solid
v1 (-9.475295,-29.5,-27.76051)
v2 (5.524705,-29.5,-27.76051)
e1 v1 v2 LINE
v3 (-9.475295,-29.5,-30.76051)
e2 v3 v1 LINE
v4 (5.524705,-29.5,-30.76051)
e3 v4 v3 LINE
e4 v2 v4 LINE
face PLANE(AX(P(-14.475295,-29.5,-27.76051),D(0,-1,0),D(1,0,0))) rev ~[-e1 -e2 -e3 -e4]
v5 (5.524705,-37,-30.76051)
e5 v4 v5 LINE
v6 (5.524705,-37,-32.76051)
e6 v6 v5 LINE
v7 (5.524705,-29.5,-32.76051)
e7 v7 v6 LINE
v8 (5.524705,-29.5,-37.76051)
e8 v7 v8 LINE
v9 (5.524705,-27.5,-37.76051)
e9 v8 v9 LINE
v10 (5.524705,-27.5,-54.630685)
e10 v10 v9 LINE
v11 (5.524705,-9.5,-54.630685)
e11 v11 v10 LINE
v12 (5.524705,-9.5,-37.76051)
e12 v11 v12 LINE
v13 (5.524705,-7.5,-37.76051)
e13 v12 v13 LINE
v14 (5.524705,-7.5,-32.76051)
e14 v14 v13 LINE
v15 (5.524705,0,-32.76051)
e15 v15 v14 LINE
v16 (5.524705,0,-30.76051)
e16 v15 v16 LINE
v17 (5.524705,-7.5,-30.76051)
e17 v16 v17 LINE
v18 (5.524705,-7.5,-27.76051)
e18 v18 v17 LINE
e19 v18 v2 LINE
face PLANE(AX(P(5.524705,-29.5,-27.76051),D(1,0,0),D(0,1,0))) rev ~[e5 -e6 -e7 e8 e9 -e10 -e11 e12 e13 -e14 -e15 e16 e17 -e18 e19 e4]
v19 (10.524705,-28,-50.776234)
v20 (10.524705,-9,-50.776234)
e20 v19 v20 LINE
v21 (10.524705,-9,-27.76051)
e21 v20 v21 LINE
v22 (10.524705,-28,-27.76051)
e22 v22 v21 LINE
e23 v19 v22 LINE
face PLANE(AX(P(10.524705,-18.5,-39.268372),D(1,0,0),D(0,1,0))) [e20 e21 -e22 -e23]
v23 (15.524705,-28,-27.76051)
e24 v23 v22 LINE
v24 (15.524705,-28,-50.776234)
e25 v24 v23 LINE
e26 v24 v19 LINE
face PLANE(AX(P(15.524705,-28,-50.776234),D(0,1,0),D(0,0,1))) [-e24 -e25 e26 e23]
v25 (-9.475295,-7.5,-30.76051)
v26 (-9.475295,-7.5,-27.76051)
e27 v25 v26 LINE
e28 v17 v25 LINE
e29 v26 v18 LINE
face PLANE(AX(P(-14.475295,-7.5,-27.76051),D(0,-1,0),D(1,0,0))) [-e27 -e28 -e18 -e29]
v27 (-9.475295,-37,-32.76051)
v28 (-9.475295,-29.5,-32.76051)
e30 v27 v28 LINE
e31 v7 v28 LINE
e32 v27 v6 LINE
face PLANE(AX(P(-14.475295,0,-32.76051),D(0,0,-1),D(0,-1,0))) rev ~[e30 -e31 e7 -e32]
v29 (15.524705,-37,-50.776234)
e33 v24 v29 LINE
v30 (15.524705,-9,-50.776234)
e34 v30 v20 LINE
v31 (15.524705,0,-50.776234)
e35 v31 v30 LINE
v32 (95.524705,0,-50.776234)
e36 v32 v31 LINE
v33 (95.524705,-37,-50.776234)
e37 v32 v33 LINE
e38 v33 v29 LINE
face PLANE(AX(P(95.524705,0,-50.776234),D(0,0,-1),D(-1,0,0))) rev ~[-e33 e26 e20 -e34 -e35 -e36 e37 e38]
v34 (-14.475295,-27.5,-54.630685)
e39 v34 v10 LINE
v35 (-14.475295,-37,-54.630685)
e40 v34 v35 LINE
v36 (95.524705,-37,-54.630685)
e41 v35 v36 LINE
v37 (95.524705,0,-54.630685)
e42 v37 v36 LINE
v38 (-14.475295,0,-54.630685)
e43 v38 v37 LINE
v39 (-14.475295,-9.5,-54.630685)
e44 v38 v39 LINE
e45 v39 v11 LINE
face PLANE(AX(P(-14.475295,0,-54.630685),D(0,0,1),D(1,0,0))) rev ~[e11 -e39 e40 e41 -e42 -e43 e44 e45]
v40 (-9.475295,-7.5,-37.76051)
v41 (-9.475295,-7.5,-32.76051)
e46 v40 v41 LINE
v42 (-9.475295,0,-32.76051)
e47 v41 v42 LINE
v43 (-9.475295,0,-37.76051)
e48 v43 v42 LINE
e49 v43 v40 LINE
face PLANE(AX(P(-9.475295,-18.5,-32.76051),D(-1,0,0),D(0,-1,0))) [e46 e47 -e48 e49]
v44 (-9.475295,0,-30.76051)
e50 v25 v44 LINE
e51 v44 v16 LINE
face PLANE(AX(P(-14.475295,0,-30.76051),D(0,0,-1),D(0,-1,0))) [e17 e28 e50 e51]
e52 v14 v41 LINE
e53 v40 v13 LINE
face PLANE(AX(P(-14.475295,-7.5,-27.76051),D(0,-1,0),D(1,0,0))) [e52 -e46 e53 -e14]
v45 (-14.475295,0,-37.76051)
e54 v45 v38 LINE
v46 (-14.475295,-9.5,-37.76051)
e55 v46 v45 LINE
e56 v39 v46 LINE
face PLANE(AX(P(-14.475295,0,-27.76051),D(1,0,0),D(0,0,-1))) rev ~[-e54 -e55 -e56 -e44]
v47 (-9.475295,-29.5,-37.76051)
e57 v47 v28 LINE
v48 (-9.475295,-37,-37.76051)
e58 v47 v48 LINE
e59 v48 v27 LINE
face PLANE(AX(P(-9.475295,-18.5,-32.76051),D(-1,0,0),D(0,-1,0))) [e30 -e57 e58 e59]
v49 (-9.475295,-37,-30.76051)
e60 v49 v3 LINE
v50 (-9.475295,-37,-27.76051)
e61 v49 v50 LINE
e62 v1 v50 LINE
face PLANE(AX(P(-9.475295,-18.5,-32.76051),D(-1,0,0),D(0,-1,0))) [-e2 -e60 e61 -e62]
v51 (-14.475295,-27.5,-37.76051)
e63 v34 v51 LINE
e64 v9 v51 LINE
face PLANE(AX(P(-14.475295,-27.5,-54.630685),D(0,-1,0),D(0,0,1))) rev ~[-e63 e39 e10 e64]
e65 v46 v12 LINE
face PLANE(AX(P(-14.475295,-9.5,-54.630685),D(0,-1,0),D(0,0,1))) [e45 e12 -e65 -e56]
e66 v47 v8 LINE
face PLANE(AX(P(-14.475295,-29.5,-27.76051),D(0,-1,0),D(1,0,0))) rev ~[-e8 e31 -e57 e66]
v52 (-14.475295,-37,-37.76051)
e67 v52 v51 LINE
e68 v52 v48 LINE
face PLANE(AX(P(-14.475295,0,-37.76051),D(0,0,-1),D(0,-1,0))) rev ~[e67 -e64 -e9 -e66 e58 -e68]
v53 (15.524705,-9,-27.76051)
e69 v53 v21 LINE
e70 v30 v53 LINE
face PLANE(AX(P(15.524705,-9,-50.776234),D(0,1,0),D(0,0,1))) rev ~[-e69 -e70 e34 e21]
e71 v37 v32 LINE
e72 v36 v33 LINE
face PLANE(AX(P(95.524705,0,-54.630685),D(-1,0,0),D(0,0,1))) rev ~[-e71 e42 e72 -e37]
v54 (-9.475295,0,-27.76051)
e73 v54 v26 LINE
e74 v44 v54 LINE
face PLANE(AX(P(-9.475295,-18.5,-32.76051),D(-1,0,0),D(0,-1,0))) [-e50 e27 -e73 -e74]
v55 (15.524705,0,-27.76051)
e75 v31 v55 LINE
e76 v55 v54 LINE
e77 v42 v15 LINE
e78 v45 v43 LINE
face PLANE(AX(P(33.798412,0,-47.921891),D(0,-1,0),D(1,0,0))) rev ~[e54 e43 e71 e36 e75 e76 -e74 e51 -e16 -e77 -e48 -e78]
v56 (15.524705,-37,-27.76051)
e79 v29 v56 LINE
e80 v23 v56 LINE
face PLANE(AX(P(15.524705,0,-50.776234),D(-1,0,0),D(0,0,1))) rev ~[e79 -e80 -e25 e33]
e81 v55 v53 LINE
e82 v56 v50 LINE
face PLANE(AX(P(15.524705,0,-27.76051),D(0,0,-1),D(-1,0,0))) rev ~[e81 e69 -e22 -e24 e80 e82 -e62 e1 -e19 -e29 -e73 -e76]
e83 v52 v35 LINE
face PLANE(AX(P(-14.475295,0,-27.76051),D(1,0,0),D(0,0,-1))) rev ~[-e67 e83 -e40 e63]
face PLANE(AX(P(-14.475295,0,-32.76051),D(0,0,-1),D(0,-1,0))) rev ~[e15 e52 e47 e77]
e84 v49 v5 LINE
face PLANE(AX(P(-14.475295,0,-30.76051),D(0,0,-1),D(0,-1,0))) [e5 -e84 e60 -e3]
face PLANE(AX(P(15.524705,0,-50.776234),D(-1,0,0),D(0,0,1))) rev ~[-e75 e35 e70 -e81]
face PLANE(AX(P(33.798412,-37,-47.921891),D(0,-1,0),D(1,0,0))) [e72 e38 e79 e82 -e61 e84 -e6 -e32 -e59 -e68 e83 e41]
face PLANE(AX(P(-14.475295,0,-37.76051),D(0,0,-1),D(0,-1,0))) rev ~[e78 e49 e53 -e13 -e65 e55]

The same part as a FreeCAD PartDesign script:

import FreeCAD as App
import Part
import Sketcher

doc = App.newDocument("Part")
body = doc.addObject("PartDesign::Body", "Body")

# Sketch on XZ plane
sketch1 = body.newObject("Sketcher::SketchObject", "Sketch")
sketch1.AttachmentSupport = (doc.getObject("XZ_Plane"), [""])
sketch1.MapMode = "FlatFace"
sketch1.addGeometry([
    Part.LineSegment(App.Vector(15.5, -27.8, 0), App.Vector(-14.5, -27.8, 0)),  # 0
    Part.LineSegment(App.Vector(-14.5, -27.8, 0), App.Vector(-14.5, -54.6, 0)),  # 1
    Part.LineSegment(App.Vector(-14.5, -54.6, 0), App.Vector(95.5, -54.6, 0)),  # 2
    Part.LineSegment(App.Vector(95.5, -54.6, 0), App.Vector(95.5, -50.8, 0)),  # 3
    Part.LineSegment(App.Vector(95.5, -50.8, 0), App.Vector(15.5, -50.8, 0)),  # 4
    Part.LineSegment(App.Vector(15.5, -50.8, 0), App.Vector(15.5, -27.8, 0)),  # 5
], False)
sketch1.addConstraint([
    Sketcher.Constraint("Coincident", 0, 2, 1, 1),
    Sketcher.Constraint("Coincident", 1, 2, 2, 1),
    Sketcher.Constraint("Coincident", 2, 2, 3, 1),
    Sketcher.Constraint("Coincident", 3, 2, 4, 1),
    Sketcher.Constraint("Coincident", 4, 2, 5, 1),
    Sketcher.Constraint("Coincident", 5, 2, 0, 1),
    Sketcher.Constraint("Horizontal", 0),
    Sketcher.Constraint("Vertical", 1),
    Sketcher.Constraint("Horizontal", 2),
    Sketcher.Constraint("Vertical", 3),
    Sketcher.Constraint("Horizontal", 4),
    Sketcher.Constraint("Vertical", 5),
    Sketcher.Constraint("DistanceX", 0, 2, 0, 1, 30.0),
    Sketcher.Constraint("DistanceX", 2, 1, 2, 2, 110.0),
    Sketcher.Constraint("DistanceY", 3, 1, 3, 2, 3.854451),
    Sketcher.Constraint("DistanceY", 1, 2, 1, 1, 26.870175),
    Sketcher.Constraint("DistanceY", 0, 2, -1, 1, 27.76051),
    Sketcher.Constraint("DistanceX", 0, 2, -1, 1, 14.475295),
])
pad1 = body.newObject("PartDesign::Pad", "Pad")
pad1.Profile = sketch1
pad1.Length = 37

# Sketch on YZ plane
sketch2 = body.newObject("Sketcher::SketchObject", "Sketch001")
sketch2.AttachmentSupport = (doc.getObject("YZ_Plane"), [""])
sketch2.MapMode = "FlatFace"
sketch2.AttachmentOffset = App.Placement(App.Vector(0, 0, 15.524705), App.Rotation())
sketch2.addGeometry([
    Part.LineSegment(App.Vector(-28, -28, 0), App.Vector(-28, -51, 0)),
    Part.LineSegment(App.Vector(-28, -51, 0), App.Vector(-9, -51, 0)),
    Part.LineSegment(App.Vector(-9, -51, 0), App.Vector(-9, -28, 0)),
    Part.LineSegment(App.Vector(-9, -28, 0), App.Vector(-28, -28, 0)),
], False)
sketch2.addConstraint([
    Sketcher.Constraint("Coincident", 0, 2, 1, 1),
    Sketcher.Constraint("Coincident", 1, 2, 2, 1),
    Sketcher.Constraint("Coincident", 2, 2, 3, 1),
    Sketcher.Constraint("Coincident", 3, 2, 0, 1),
    Sketcher.Constraint("Vertical", 0),
    Sketcher.Constraint("Horizontal", 1),
    Sketcher.Constraint("Vertical", 2),
    Sketcher.Constraint("Horizontal", 3),
    Sketcher.Constraint("DistanceX", 1, 1, 1, 2, 19.0),
    Sketcher.Constraint("DistanceX", 0, 2, -1, 1, 28.0),
    Sketcher.Constraint("DistanceY", 0, 2, 0, 1, 23.015724),
    Sketcher.Constraint("DistanceY", 2, 2, -1, 1, 27.76051),
])
pocket1 = body.newObject("PartDesign::Pocket", "Pocket")
pocket1.Profile = sketch2
pocket1.Length = 5

# Sketch on YZ plane
sketch3 = body.newObject("Sketcher::SketchObject", "Sketch002")
sketch3.AttachmentSupport = (doc.getObject("YZ_Plane"), [""])
sketch3.MapMode = "FlatFace"
sketch3.AttachmentOffset = App.Placement(App.Vector(0, 0, -14.475295), App.Rotation())
sketch3.addGeometry([
    Part.LineSegment(App.Vector(-10, -28, 0), App.Vector(-10, -55, 0)),
    Part.LineSegment(App.Vector(-10, -55, 0), App.Vector(-28, -55, 0)),
    Part.LineSegment(App.Vector(-28, -55, 0), App.Vector(-28, -28, 0)),
    Part.LineSegment(App.Vector(-28, -28, 0), App.Vector(-10, -28, 0)),
], False)
sketch3.addConstraint([
    Sketcher.Constraint("Coincident", 0, 2, 1, 1),
    Sketcher.Constraint("Coincident", 1, 2, 2, 1),
    Sketcher.Constraint("Coincident", 2, 2, 3, 1),
    Sketcher.Constraint("Coincident", 3, 2, 0, 1),
    Sketcher.Constraint("Vertical", 0),
    Sketcher.Constraint("Horizontal", 1),
    Sketcher.Constraint("Vertical", 2),
    Sketcher.Constraint("Horizontal", 3),
    Sketcher.Constraint("DistanceX", 1, 2, 1, 1, 18.0),
    Sketcher.Constraint("DistanceX", 0, 2, -1, 1, 9.5),
    Sketcher.Constraint("DistanceY", 0, 2, 0, 1, 26.870175),
    Sketcher.Constraint("DistanceY", 2, 2, -1, 1, 27.76051),
])
pocket2 = body.newObject("PartDesign::Pocket", "Pocket001")
pocket2.Profile = sketch3
pocket2.Length = 20
pocket2.Reversed = True

# Sketch on YZ plane
sketch4 = body.newObject("Sketcher::SketchObject", "Sketch003")
sketch4.AttachmentSupport = (doc.getObject("YZ_Plane"), [""])
sketch4.MapMode = "FlatFace"
sketch4.AttachmentOffset = App.Placement(App.Vector(0, 0, -14.475295), App.Rotation())
sketch4.addGeometry([
    Part.LineSegment(App.Vector(0, -30.8, 0), App.Vector(0, -32.8, 0)),
    Part.LineSegment(App.Vector(0, -32.8, 0), App.Vector(-37, -32.8, 0)),
    Part.LineSegment(App.Vector(-37, -32.8, 0), App.Vector(-37, -30.8, 0)),
    Part.LineSegment(App.Vector(-37, -30.8, 0), App.Vector(0, -30.8, 0)),
], False)
sketch4.addConstraint([
    Sketcher.Constraint("Coincident", 0, 2, 1, 1),
    Sketcher.Constraint("Coincident", 1, 2, 2, 1),
    Sketcher.Constraint("Coincident", 2, 2, 3, 1),
    Sketcher.Constraint("Coincident", 3, 2, 0, 1),
    Sketcher.Constraint("Vertical", 0),
    Sketcher.Constraint("Horizontal", 1),
    Sketcher.Constraint("Vertical", 2),
    Sketcher.Constraint("Horizontal", 3),
    Sketcher.Constraint("PointOnObject", 0, 2, -2),
    Sketcher.Constraint("DistanceX", 1, 2, 1, 1, 37.0),
    Sketcher.Constraint("DistanceY", 0, 2, 0, 1, 2.0),
    Sketcher.Constraint("DistanceY", 0, 2, -1, 1, 32.76051),
])
pocket3 = body.newObject("PartDesign::Pocket", "Pocket002")
pocket3.Profile = sketch4
pocket3.Length = 20
pocket3.Reversed = True

# Sketch on YZ plane
sketch5 = body.newObject("Sketcher::SketchObject", "Sketch004")
sketch5.AttachmentSupport = (doc.getObject("YZ_Plane"), [""])
sketch5.MapMode = "FlatFace"
sketch5.AttachmentOffset = App.Placement(App.Vector(0, 0, -14.475295), App.Rotation())
sketch5.addGeometry([
    Part.LineSegment(App.Vector(0, -28, 0), App.Vector(0, -38, 0)),
    Part.LineSegment(App.Vector(0, -38, 0), App.Vector(-37, -38, 0)),
    Part.LineSegment(App.Vector(-37, -38, 0), App.Vector(-37, -28, 0)),
    Part.LineSegment(App.Vector(-37, -28, 0), App.Vector(0, -28, 0)),
], False)
sketch5.addConstraint([
    Sketcher.Constraint("Coincident", 0, 2, 1, 1),
    Sketcher.Constraint("Coincident", 1, 2, 2, 1),
    Sketcher.Constraint("Coincident", 2, 2, 3, 1),
    Sketcher.Constraint("Coincident", 3, 2, 0, 1),
    Sketcher.Constraint("Vertical", 0),
    Sketcher.Constraint("Horizontal", 1),
    Sketcher.Constraint("Vertical", 2),
    Sketcher.Constraint("Horizontal", 3),
    Sketcher.Constraint("PointOnObject", 0, 2, -2),
    Sketcher.Constraint("DistanceX", 1, 2, 1, 1, 37.0),
    Sketcher.Constraint("DistanceY", 0, 2, 0, 1, 10.0),
    Sketcher.Constraint("DistanceY", 0, 2, -1, 1, 37.76051),
])
pocket4 = body.newObject("PartDesign::Pocket", "Pocket003")
pocket4.Profile = sketch5
pocket4.Length = 5
pocket4.Reversed = True

# Sketch on XY plane
sketch6 = body.newObject("Sketcher::SketchObject", "Sketch005")
sketch6.AttachmentSupport = (doc.getObject("XY_Plane"), [""])
sketch6.MapMode = "FlatFace"
sketch6.AttachmentOffset = App.Placement(App.Vector(0, 0, -27.76051), App.Rotation())
sketch6.addGeometry([
    Part.LineSegment(App.Vector(-14, -8, 0), App.Vector(-14, -30, 0)),
    Part.LineSegment(App.Vector(-14, -30, 0), App.Vector(6, -30, 0)),
    Part.LineSegment(App.Vector(6, -30, 0), App.Vector(6, -8, 0)),
    Part.LineSegment(App.Vector(6, -8, 0), App.Vector(-14, -8, 0)),
], False)
sketch6.addConstraint([
    Sketcher.Constraint("Coincident", 0, 2, 1, 1),
    Sketcher.Constraint("Coincident", 1, 2, 2, 1),
    Sketcher.Constraint("Coincident", 2, 2, 3, 1),
    Sketcher.Constraint("Coincident", 3, 2, 0, 1),
    Sketcher.Constraint("Vertical", 0),
    Sketcher.Constraint("Horizontal", 1),
    Sketcher.Constraint("Vertical", 2),
    Sketcher.Constraint("Horizontal", 3),
    Sketcher.Constraint("DistanceX", 1, 1, 1, 2, 20.0),
    Sketcher.Constraint("DistanceY", 0, 2, 0, 1, 22.0),
    Sketcher.Constraint("DistanceY", 0, 2, -1, 1, 29.5),
    Sketcher.Constraint("DistanceX", 0, 2, -1, 1, 14.475295),
])
pocket5 = body.newObject("PartDesign::Pocket", "Pocket004")
pocket5.Profile = sketch6
pocket5.Length = 10

doc.recompute()
